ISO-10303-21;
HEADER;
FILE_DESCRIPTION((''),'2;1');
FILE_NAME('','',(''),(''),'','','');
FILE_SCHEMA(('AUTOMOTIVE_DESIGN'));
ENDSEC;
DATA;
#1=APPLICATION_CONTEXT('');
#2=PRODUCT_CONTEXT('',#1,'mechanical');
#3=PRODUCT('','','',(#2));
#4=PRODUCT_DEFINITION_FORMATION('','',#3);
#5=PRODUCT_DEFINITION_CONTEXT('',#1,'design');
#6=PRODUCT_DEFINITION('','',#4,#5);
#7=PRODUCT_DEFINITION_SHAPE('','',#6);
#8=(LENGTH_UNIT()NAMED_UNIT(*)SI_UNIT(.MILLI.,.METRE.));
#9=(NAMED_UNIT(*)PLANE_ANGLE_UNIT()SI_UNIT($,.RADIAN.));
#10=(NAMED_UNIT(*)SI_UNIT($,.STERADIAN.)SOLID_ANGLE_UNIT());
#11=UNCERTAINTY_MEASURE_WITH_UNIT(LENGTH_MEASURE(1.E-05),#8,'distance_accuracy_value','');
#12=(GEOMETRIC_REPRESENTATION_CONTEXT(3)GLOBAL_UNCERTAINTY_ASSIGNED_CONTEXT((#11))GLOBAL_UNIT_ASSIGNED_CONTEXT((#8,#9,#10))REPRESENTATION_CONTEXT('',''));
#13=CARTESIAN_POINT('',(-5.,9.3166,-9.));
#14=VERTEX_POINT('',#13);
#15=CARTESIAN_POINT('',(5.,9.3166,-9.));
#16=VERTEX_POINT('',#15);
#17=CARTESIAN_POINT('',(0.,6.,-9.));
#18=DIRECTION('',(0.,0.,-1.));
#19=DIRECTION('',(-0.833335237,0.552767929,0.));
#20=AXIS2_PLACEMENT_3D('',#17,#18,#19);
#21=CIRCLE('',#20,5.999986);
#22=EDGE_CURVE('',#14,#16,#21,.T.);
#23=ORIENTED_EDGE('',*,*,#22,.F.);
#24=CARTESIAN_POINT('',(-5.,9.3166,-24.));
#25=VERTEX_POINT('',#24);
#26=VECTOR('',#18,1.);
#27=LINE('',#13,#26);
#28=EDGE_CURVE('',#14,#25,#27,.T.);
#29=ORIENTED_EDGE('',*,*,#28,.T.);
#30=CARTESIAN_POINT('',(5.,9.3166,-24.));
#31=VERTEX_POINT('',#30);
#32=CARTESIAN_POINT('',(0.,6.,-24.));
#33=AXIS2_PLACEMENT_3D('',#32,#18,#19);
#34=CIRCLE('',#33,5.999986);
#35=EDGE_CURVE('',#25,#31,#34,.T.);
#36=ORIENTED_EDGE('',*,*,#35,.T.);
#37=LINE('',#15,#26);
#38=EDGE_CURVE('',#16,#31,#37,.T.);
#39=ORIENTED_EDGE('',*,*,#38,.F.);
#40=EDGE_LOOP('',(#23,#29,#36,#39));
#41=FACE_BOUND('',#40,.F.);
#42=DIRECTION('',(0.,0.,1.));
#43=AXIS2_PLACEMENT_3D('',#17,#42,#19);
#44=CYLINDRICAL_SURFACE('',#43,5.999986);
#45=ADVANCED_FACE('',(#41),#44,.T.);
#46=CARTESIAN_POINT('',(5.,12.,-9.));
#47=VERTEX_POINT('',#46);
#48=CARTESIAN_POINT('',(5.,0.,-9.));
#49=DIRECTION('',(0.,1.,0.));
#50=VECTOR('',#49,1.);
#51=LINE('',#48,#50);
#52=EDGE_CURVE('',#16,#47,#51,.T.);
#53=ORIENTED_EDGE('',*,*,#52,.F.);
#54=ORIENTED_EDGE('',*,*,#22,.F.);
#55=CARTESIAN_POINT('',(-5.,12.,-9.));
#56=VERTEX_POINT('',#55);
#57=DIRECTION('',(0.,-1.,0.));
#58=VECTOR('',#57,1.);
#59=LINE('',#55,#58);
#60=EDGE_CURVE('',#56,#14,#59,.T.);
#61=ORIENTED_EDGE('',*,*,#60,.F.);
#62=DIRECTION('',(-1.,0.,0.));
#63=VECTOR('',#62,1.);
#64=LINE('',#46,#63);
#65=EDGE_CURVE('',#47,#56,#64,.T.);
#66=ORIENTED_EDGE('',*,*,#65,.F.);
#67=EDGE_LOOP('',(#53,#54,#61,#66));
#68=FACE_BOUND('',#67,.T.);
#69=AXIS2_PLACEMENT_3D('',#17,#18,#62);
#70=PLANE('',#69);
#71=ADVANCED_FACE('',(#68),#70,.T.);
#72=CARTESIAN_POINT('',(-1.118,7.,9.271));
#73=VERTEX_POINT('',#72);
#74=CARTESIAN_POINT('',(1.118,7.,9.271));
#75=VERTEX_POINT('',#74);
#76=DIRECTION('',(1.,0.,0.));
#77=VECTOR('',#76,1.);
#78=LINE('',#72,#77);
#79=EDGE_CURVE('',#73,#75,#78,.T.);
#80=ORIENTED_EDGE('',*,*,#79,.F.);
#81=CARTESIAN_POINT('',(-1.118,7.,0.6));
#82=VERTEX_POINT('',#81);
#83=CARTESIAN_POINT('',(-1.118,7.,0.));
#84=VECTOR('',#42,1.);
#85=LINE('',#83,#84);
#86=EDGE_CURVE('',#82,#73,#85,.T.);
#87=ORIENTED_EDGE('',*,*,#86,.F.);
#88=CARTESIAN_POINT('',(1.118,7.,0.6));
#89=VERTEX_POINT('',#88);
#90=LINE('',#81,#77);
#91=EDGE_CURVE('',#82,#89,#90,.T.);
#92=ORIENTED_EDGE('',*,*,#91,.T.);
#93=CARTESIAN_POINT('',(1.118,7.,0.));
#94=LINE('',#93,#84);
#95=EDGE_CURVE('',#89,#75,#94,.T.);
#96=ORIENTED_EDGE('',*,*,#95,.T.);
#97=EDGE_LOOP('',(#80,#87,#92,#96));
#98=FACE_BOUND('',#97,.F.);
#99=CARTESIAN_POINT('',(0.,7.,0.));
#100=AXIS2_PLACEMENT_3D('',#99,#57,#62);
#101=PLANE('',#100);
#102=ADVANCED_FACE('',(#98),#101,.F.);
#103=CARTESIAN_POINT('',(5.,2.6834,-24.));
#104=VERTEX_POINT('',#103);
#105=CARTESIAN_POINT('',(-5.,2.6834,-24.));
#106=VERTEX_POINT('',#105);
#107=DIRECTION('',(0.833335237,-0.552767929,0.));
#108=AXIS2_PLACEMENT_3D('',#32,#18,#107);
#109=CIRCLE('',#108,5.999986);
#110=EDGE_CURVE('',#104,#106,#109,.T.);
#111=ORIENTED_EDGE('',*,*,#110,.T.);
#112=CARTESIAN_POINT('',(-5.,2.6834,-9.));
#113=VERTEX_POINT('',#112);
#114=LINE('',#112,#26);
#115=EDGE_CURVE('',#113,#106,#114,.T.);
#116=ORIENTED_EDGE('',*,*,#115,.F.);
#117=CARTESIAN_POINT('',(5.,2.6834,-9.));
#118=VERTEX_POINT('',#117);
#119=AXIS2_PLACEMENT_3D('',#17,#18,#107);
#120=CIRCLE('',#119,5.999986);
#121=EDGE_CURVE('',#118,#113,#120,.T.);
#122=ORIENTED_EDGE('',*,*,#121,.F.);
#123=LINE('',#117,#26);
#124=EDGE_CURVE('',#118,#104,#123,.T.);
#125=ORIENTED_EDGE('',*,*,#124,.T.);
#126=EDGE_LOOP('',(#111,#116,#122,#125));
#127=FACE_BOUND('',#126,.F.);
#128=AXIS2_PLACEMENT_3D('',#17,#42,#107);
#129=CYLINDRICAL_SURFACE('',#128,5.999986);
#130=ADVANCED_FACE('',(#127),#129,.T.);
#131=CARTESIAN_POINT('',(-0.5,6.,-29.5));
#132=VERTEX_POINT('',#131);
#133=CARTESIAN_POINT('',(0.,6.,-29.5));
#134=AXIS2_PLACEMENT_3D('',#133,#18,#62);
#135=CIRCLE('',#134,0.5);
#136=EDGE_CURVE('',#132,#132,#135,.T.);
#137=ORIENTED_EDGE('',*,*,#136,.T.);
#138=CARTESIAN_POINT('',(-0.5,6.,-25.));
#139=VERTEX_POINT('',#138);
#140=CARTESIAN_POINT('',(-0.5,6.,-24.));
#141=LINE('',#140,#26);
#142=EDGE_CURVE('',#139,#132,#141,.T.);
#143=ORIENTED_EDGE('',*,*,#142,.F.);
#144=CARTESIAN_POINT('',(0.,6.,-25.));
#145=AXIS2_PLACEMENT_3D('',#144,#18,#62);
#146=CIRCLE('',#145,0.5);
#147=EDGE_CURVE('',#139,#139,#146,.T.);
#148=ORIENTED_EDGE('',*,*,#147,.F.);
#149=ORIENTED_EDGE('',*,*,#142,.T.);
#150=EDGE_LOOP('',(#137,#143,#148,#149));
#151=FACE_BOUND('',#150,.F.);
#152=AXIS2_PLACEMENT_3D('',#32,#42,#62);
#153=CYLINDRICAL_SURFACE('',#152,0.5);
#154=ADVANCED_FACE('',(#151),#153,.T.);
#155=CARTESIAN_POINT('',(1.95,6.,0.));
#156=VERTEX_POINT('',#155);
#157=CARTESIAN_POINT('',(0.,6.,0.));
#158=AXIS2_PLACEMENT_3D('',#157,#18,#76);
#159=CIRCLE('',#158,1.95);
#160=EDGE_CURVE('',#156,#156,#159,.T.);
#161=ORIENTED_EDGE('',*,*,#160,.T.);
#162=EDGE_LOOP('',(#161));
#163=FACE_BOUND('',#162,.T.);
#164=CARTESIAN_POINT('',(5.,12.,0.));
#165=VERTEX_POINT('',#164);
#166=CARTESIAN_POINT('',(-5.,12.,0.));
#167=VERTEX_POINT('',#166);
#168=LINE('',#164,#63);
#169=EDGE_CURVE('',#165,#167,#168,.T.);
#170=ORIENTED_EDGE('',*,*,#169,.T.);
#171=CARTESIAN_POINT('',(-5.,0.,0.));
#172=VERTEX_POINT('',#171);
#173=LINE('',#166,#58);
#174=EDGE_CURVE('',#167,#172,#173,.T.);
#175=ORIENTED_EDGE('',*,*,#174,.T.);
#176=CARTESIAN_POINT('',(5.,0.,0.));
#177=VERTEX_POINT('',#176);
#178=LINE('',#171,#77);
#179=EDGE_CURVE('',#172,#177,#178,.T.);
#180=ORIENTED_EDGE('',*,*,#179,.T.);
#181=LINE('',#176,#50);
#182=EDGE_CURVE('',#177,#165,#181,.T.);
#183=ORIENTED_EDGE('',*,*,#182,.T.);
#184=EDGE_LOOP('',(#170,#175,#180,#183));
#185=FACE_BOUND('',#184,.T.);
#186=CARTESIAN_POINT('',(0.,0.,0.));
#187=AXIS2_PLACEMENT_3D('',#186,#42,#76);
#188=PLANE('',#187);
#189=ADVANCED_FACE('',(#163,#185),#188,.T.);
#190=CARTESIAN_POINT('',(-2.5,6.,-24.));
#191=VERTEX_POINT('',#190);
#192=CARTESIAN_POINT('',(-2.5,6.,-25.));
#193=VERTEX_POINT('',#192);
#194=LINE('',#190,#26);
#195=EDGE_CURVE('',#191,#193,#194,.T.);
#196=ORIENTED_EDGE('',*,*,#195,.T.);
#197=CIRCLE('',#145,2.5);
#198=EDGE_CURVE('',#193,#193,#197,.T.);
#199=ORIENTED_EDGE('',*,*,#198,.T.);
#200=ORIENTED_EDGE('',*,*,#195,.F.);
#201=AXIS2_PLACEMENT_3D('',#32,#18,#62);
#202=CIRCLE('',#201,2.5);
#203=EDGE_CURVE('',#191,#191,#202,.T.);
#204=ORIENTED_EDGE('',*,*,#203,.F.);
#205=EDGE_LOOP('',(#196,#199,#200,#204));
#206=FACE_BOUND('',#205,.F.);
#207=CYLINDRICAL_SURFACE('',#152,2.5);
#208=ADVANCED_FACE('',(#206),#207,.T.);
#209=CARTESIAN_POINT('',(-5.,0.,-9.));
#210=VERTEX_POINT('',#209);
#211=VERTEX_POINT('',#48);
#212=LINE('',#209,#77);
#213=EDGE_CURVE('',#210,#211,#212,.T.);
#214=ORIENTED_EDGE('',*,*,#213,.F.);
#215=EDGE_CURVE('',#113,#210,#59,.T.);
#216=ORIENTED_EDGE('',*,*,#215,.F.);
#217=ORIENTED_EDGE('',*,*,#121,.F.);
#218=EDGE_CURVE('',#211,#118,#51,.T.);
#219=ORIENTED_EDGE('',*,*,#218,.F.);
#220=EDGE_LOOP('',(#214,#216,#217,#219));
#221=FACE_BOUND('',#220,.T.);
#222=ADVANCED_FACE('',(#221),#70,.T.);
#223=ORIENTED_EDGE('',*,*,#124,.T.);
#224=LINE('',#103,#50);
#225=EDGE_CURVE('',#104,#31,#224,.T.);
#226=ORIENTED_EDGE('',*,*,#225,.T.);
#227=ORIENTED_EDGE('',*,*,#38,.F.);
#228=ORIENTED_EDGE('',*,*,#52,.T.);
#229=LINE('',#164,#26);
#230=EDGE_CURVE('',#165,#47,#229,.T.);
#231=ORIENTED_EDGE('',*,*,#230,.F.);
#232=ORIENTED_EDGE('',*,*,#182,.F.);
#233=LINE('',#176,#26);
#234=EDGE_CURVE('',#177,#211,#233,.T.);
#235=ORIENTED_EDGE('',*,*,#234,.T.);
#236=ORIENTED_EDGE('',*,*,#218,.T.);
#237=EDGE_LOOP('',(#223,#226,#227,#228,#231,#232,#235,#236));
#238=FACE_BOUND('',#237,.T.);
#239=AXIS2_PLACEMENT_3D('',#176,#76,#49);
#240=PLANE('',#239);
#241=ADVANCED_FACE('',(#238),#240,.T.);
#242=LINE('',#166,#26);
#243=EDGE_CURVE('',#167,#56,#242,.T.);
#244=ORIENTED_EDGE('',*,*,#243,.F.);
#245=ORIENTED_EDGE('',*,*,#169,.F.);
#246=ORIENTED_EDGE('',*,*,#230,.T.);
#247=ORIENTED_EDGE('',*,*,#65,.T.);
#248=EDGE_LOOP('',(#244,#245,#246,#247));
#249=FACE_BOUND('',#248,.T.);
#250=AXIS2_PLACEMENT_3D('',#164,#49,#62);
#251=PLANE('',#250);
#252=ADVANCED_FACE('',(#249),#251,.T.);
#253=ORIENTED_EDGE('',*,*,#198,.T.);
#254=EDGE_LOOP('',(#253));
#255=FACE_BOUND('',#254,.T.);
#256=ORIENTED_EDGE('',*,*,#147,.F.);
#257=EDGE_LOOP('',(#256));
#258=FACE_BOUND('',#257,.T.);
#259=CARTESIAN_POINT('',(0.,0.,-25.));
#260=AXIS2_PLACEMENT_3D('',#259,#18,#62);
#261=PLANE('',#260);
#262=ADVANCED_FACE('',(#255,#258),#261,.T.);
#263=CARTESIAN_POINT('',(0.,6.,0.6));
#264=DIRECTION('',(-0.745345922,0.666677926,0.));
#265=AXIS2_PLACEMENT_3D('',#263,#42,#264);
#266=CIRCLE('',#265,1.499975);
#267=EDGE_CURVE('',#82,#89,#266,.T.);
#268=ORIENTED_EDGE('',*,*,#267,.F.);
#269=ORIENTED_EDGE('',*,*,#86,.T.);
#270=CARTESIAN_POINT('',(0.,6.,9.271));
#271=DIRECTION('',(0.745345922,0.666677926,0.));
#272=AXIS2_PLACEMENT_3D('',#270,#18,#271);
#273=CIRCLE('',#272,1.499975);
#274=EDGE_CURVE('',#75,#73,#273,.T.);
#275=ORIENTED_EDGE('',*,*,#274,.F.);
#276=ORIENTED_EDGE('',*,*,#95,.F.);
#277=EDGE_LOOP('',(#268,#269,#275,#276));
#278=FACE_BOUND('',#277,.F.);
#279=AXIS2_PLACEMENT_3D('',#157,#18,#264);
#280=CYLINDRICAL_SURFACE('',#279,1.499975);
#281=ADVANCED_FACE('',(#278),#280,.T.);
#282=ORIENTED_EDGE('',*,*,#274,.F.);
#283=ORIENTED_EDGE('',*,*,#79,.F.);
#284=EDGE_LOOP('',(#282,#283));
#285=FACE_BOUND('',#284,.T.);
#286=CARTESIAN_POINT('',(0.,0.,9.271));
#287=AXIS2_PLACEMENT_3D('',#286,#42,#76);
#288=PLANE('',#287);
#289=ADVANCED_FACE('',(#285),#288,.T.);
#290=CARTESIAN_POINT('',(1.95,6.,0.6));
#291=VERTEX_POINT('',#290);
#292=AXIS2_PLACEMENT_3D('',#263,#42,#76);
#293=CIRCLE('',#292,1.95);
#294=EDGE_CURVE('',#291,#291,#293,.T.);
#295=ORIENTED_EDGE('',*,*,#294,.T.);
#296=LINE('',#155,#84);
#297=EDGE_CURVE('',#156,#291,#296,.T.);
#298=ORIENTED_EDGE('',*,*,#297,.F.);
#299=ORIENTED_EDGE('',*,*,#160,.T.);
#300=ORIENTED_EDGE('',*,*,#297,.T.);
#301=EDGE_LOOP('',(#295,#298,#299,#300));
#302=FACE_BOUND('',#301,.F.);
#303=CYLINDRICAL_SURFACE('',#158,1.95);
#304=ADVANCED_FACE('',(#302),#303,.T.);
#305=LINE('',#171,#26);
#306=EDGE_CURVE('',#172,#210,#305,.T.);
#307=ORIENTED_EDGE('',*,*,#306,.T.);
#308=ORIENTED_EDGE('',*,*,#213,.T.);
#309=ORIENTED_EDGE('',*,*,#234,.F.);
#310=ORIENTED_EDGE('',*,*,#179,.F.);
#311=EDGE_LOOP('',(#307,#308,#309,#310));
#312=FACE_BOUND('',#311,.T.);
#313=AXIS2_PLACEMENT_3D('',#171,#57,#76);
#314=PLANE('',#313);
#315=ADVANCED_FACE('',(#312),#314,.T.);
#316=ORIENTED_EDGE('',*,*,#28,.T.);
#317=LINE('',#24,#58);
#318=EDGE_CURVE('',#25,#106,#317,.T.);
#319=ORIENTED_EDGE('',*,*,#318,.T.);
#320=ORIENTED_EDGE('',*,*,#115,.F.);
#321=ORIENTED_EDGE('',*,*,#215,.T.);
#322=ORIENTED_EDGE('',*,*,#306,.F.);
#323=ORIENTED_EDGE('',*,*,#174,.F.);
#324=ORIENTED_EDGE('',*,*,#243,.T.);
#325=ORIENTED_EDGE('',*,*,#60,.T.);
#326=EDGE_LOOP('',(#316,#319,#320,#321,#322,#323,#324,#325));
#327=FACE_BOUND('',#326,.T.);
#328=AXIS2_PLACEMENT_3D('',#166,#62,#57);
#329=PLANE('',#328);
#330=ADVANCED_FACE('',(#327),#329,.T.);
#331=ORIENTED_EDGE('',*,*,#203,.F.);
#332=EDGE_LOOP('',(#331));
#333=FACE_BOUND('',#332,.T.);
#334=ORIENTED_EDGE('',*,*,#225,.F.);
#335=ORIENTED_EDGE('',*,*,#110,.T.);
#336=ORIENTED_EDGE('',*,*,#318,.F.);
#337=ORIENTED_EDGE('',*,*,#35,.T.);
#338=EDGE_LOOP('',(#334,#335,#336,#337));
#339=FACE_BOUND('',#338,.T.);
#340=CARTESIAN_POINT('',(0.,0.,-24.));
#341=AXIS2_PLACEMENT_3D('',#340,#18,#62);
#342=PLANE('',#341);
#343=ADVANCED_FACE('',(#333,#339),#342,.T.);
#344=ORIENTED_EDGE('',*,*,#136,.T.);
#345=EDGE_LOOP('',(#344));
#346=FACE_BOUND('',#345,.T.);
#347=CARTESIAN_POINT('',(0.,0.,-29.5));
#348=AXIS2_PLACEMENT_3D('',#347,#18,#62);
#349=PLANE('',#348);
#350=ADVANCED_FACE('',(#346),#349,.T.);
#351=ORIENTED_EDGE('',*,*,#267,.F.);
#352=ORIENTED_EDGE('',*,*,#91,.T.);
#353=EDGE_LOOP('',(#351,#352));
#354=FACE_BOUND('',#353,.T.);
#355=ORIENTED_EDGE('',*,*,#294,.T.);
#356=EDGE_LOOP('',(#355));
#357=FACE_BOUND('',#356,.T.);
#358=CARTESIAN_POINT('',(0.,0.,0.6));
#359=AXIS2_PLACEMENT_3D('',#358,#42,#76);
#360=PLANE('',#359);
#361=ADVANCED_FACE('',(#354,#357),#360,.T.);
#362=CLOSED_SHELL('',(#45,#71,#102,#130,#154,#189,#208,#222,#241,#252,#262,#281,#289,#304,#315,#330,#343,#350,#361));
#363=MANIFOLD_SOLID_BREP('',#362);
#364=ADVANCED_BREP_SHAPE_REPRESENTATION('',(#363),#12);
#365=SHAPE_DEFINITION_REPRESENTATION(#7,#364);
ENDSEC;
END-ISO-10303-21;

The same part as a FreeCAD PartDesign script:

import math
import FreeCAD as App
import Part
import Sketcher

V = App.Vector
Q = App.Units.Quantity

doc = App.newDocument("Part")
body = doc.addObject("PartDesign::Body", "Body")
body.AllowCompound = True

sketch1 = doc.addObject("Sketcher::SketchObject", "Sketch")
body.addObject(sketch1)
sketch1.AttachmentSupport = (doc.XY_Plane, [""])
sketch1.MapMode = "FlatFace"
sketch1.addGeometry([
    Part.LineSegment(V(1.1, 7, 0), V(-1.1, 7, 0)),
    Part.ArcOfCircle(Part.Circle(V(0, 6, 0), V(0, 0, 1), 1.5), math.radians(138), math.radians(402)),
], False)
sketch1.addConstraint([
    Sketcher.Constraint("Coincident", 0, 1, 1, 2),
    Sketcher.Constraint("Coincident", 1, 1, 0, 2),
    Sketcher.Constraint("Horizontal", 0),
    Sketcher.Constraint("PointOnObject", 1, 3, -2),
    Sketcher.Constraint("Radius", 1, Q("1.5 mm")),
    Sketcher.Constraint("DistanceY", -1, 1, 1, 3, Q("6 mm")),
    Sketcher.Constraint("DistanceY", -1, 1, 0, 1, Q("7 mm")),
])
pad1 = doc.addObject("PartDesign::Pad", "Pad")
body.addObject(pad1)
pad1.Profile = sketch1
pad1.Length = 9.271

sketch2 = doc.addObject("Sketcher::SketchObject", "Sketch001")
body.addObject(sketch2)
sketch2.AttachmentSupport = (doc.XY_Plane, [""])
sketch2.MapMode = "FlatFace"
sketch2.addGeometry([
    Part.Circle(V(0, 6, 0), V(0, 0, 1), 1.9),
    Part.Circle(V(0, 6, 0), V(0, 0, 1), 1.5),
], False)
sketch2.addConstraint([
    Sketcher.Constraint("Coincident", 1, 3, 0, 3),
    Sketcher.Constraint("PointOnObject", 0, 3, -2),
    Sketcher.Constraint("Diameter", 1, Q("3 mm")),
    Sketcher.Constraint("Diameter", 0, Q("3.9 mm")),
    Sketcher.Constraint("DistanceY", -1, 1, 0, 3, Q("6 mm")),
])
pad2 = doc.addObject("PartDesign::Pad", "Pad001")
body.addObject(pad2)
pad2.Profile = sketch2
pad2.Length = 0.6

sketch3 = doc.addObject("Sketcher::SketchObject", "Sketch002")
body.addObject(sketch3)
sketch3.AttachmentSupport = (doc.XY_Plane, [""])
sketch3.MapMode = "FlatFace"
sketch3.addGeometry([
    Part.ArcOfCircle(Part.Circle(V(0, 6, 0), V(0, 0, 1), 1.5), math.radians(42), math.radians(138)),
    Part.LineSegment(V(1.1, 7, 0), V(-1.1, 7, 0)),
], False)
sketch3.addConstraint([
    Sketcher.Constraint("Coincident", 0, 1, 1, 1),
    Sketcher.Constraint("Coincident", 1, 2, 0, 2),
    Sketcher.Constraint("Horizontal", 1),
    Sketcher.Constraint("PointOnObject", 0, 3, -2),
    Sketcher.Constraint("Radius", 0, Q("1.5 mm")),
    Sketcher.Constraint("DistanceY", -1, 1, 0, 3, Q("6 mm")),
    Sketcher.Constraint("DistanceY", -1, 1, 0, 1, Q("7 mm")),
])
pad3 = doc.addObject("PartDesign::Pad", "Pad002")
body.addObject(pad3)
pad3.Profile = sketch3
pad3.Length = 0.6

sketch4 = doc.addObject("Sketcher::SketchObject", "Sketch003")
body.addObject(sketch4)
sketch4.AttachmentSupport = (doc.XY_Plane, [""])
sketch4.MapMode = "FlatFace"
sketch4.addGeometry([
    Part.LineSegment(V(-5, 12, 0), V(-5, 0, 0)),
    Part.LineSegment(V(-5, 0, 0), V(5, 0, 0)),
    Part.LineSegment(V(5, 0, 0), V(5, 12, 0)),
    Part.LineSegment(V(5, 12, 0), V(-5, 12, 0)),
    Part.Circle(V(0, 6, 0), V(0, 0, 1), 1.9),
], False)
sketch4.addConstraint([
    Sketcher.Constraint("Coincident", 0, 2, 1, 1),
    Sketcher.Constraint("Coincident", 1, 2, 2, 1),
    Sketcher.Constraint("Coincident", 2, 2, 3, 1),
    Sketcher.Constraint("Coincident", 3, 2, 0, 1),
    Sketcher.Constraint("Vertical", 0),
    Sketcher.Constraint("Horizontal", 1),
    Sketcher.Constraint("Vertical", 2),
    Sketcher.Constraint("Horizontal", 3),
    Sketcher.Constraint("Symmetric", 0, 2, 1, 2, -1, 1),
    Sketcher.Constraint("PointOnObject", 4, 3, -2),
    Sketcher.Constraint("DistanceX", 1, 1, 1, 2, Q("10 mm")),
    Sketcher.Constraint("DistanceY", 0, 2, 0, 1, Q("12 mm")),
    Sketcher.Constraint("Diameter", 4, Q("3.9 mm")),
    Sketcher.Constraint("DistanceY", -1, 1, 4, 3, Q("6 mm")),
])
pad4 = doc.addObject("PartDesign::Pad", "Pad003")
body.addObject(pad4)
pad4.Profile = sketch4
pad4.Length = 9
pad4.Reversed = True

sketch5 = doc.addObject("Sketcher::SketchObject", "Sketch004")
body.addObject(sketch5)
sketch5.AttachmentSupport = (doc.XY_Plane, [""])
sketch5.MapMode = "FlatFace"
sketch5.addGeometry(Part.Circle(V(0, 6, 0), V(0, 0, 1), 1.9), False)
sketch5.addConstraint([
    Sketcher.Constraint("PointOnObject", 0, 3, -2),
    Sketcher.Constraint("Diameter", 0, Q("3.9 mm")),
    Sketcher.Constraint("DistanceY", -1, 1, 0, 3, Q("6 mm")),
])
pad5 = doc.addObject("PartDesign::Pad", "Pad004")
body.addObject(pad5)
pad5.Profile = sketch5
pad5.Length = 9
pad5.Reversed = True

sketch6 = doc.addObject("Sketcher::SketchObject", "Sketch005")
body.addObject(sketch6)
sketch6.AttachmentSupport = (doc.XY_Plane, [""])
sketch6.MapMode = "FlatFace"
sketch6.AttachmentOffset = App.Placement(V(0, 0, -9), App.Rotation())
sketch6.addGeometry([
    Part.LineSegment(V(-5, 3, 0), V(-5, 9, 0)),
    Part.ArcOfCircle(Part.Circle(V(0, 6, 0), V(0, 0, 1), 6), math.radians(34), math.radians(146)),
    Part.LineSegment(V(5, 9, 0), V(5, 3, 0)),
    Part.ArcOfCircle(Part.Circle(V(0, 6, 0), V(0, 0, 1), 6), math.radians(-146), math.radians(-34)),
], False)
sketch6.addConstraint([
    Sketcher.Constraint("Coincident", 0, 2, 1, 2),
    Sketcher.Constraint("Coincident", 1, 1, 2, 1),
    Sketcher.Constraint("Coincident", 2, 2, 3, 2),
    Sketcher.Constraint("Coincident", 3, 1, 0, 1),
    Sketcher.Constraint("Vertical", 0),
    Sketcher.Constraint("Vertical", 2),
    Sketcher.Constraint("Coincident", 3, 3, 1, 3),
    Sketcher.Constraint("Equal", 1, 3),
    Sketcher.Constraint("Symmetric", 0, 2, 1, 1, -2),
    Sketcher.Constraint("Radius", 1, Q("6 mm")),
    Sketcher.Constraint("DistanceY", -1, 1, 1, 3, Q("6 mm")),
    Sketcher.Constraint("DistanceX", 0, 2, -1, 1, Q("5 mm")),
])
pad6 = doc.addObject("PartDesign::Pad", "Pad005")
body.addObject(pad6)
pad6.Profile = sketch6
pad6.Length = 15
pad6.Reversed = True

sketch7 = doc.addObject("Sketcher::SketchObject", "Sketch006")
body.addObject(sketch7)
sketch7.AttachmentSupport = (doc.XY_Plane, [""])
sketch7.MapMode = "FlatFace"
sketch7.AttachmentOffset = App.Placement(V(0, 0, -24), App.Rotation())
sketch7.addGeometry([
    Part.Circle(V(0, 6, 0), V(0, 0, 1), 2.5),
    Part.Circle(V(0, 6, 0), V(0, 0, 1), 0.5),
], False)
sketch7.addConstraint([
    Sketcher.Constraint("Coincident", 1, 3, 0, 3),
    Sketcher.Constraint("PointOnObject", 0, 3, -2),
    Sketcher.Constraint("Diameter", 0, Q("5 mm")),
    Sketcher.Constraint("Diameter", 1, Q("1 mm")),
    Sketcher.Constraint("DistanceY", -1, 1, 0, 3, Q("6 mm")),
])
pad7 = doc.addObject("PartDesign::Pad", "Pad006")
body.addObject(pad7)
pad7.Profile = sketch7
pad7.Length = 1
pad7.Reversed = True

sketch8 = doc.addObject("Sketcher::SketchObject", "Sketch007")
body.addObject(sketch8)
sketch8.AttachmentSupport = (doc.XY_Plane, [""])
sketch8.MapMode = "FlatFace"
sketch8.AttachmentOffset = App.Placement(V(0, 0, -24), App.Rotation())
sketch8.addGeometry(Part.Circle(V(0, 6, 0), V(0, 0, 1), 0.5), False)
sketch8.addConstraint([
    Sketcher.Constraint("PointOnObject", 0, 3, -2),
    Sketcher.Constraint("Diameter", 0, Q("1 mm")),
    Sketcher.Constraint("DistanceY", -1, 1, 0, 3, Q("6 mm")),
])
pad8 = doc.addObject("PartDesign::Pad", "Pad007")
body.addObject(pad8)
pad8.Profile = sketch8
pad8.Length = 5.5
pad8.Reversed = True

doc.recompute()
